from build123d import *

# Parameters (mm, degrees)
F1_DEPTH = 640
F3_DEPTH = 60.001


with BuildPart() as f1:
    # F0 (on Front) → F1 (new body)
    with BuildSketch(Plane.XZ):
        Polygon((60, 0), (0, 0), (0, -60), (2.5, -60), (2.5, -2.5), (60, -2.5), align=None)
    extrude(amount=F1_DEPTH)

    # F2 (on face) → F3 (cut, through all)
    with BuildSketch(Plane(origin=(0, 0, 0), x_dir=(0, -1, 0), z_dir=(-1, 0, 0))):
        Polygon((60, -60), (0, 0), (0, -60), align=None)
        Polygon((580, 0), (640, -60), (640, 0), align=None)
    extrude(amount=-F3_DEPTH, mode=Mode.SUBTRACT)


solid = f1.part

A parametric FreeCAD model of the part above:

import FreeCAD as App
import Part
import Sketcher

doc = App.newDocument("Part")
body = doc.addObject("PartDesign::Body", "Body")

sketch1 = body.newObject("Sketcher::SketchObject", "Sketch")
sketch1.AttachmentSupport = (doc.getObject("XZ_Plane"), [""])
sketch1.MapMode = "FlatFace"
sketch1.addGeometry(Part.LineSegment(App.Vector(60, 0, 0), App.Vector(0, 0, 0)), False)
sketch1.addGeometry(Part.LineSegment(App.Vector(0, 0, 0), App.Vector(0, -60, 0)), False)
sketch1.addGeometry(Part.LineSegment(App.Vector(0, -60, 0), App.Vector(2.5, -60, 0)), False)
sketch1.addGeometry(Part.LineSegment(App.Vector(2.5, -60, 0), App.Vector(2.5, -2.5, 0)), False)
sketch1.addGeometry(Part.LineSegment(App.Vector(2.5, -2.5, 0), App.Vector(60, -2.5, 0)), False)
sketch1.addGeometry(Part.LineSegment(App.Vector(60, -2.5, 0), App.Vector(60, 0, 0)), False)
sketch1.addConstraint(Sketcher.Constraint("Coincident", 0, 2, 1, 1))
sketch1.addConstraint(Sketcher.Constraint("Coincident", 1, 2, 2, 1))
sketch1.addConstraint(Sketcher.Constraint("Coincident", 2, 2, 3, 1))
sketch1.addConstraint(Sketcher.Constraint("Coincident", 3, 2, 4, 1))
sketch1.addConstraint(Sketcher.Constraint("Coincident", 4, 2, 5, 1))
sketch1.addConstraint(Sketcher.Constraint("Coincident", 5, 2, 0, 1))
sketch1.addConstraint(Sketcher.Constraint("Horizontal", 0))
sketch1.addConstraint(Sketcher.Constraint("Vertical", 1))
sketch1.addConstraint(Sketcher.Constraint("Horizontal", 2))
sketch1.addConstraint(Sketcher.Constraint("Vertical", 3))
sketch1.addConstraint(Sketcher.Constraint("Horizontal", 4))
sketch1.addConstraint(Sketcher.Constraint("Vertical", 5))
sketch1.addConstraint(Sketcher.Constraint("Coincident", 0, 2, -1, 1))
sketch1.addConstraint(Sketcher.Constraint("Equal", 0, 1))
sketch1.addConstraint(Sketcher.Constraint("Equal", 4, 3))
sketch1.addConstraint(Sketcher.Constraint("DistanceX", 0, 2, 0, 1, 60.0))
sketch1.addConstraint(Sketcher.Constraint("DistanceX", 2, 1, 2, 2, 2.5))
pad1 = body.newObject("PartDesign::Pad", "Pad")
pad1.Profile = sketch1
pad1.Length = 640

sketch2 = body.newObject("Sketcher::SketchObject", "Sketch001")
sketch2.AttachmentSupport = (doc.getObject("YZ_Plane"), [""])
sketch2.MapMode = "FlatFace"
sketch2.addGeometry(Part.LineSegment(App.Vector(-60, -60, 0), App.Vector(0, 0, 0)), False)
sketch2.addGeometry(Part.LineSegment(App.Vector(0, 0, 0), App.Vector(0, -60, 0)), False)
sketch2.addGeometry(Part.LineSegment(App.Vector(0, -60, 0), App.Vector(-60, -60, 0)), False)
sketch2.addGeometry(Part.LineSegment(App.Vector(-580, 0, 0), App.Vector(-640, -60, 0)), False)
sketch2.addGeometry(Part.LineSegment(App.Vector(-640, -60, 0), App.Vector(-640, 0, 0)), False)
sketch2.addGeometry(Part.LineSegment(App.Vector(-640, 0, 0), App.Vector(-580, 0, 0)), False)
sketch2.addConstraint(Sketcher.Constraint("Coincident", 0, 2, 1, 1))
sketch2.addConstraint(Sketcher.Constraint("Coincident", 1, 2, 2, 1))
sketch2.addConstraint(Sketcher.Constraint("Coincident", 2, 2, 0, 1))
sketch2.addConstraint(Sketcher.Constraint("Coincident", 3, 2, 4, 1))
sketch2.addConstraint(Sketcher.Constraint("Coincident", 4, 2, 5, 1))
sketch2.addConstraint(Sketcher.Constraint("Coincident", 5, 2, 3, 1))
sketch2.addConstraint(Sketcher.Constraint("Vertical", 1))
sketch2.addConstraint(Sketcher.Constraint("Horizontal", 2))
sketch2.addConstraint(Sketcher.Constraint("Vertical", 4))
sketch2.addConstraint(Sketcher.Constraint("Horizontal", 5))
sketch2.addConstraint(Sketcher.Constraint("Coincident", 0, 2, -1, 1))
sketch2.addConstraint(Sketcher.Constraint("PointOnObject", 4, 2, -1))
sketch2.addConstraint(Sketcher.Constraint("Parallel", 0, 3))
sketch2.addConstraint(Sketcher.Constraint("Horizontal", 2, 2, 3, 2))
sketch2.addConstraint(Sketcher.Constraint("Equal", 5, 1))
sketch2.addConstraint(Sketcher.Constraint("DistanceX", 2, 2, 2, 1, 60.0))
sketch2.addConstraint(Sketcher.Constraint("DistanceX", 3, 2, -1, 1, 640.0))
pocket1 = body.newObject("PartDesign::Pocket", "Pocket")
pocket1.Profile = sketch2
pocket1.Type = "ThroughAll"
pocket1.Reversed = True

doc.recompute()
